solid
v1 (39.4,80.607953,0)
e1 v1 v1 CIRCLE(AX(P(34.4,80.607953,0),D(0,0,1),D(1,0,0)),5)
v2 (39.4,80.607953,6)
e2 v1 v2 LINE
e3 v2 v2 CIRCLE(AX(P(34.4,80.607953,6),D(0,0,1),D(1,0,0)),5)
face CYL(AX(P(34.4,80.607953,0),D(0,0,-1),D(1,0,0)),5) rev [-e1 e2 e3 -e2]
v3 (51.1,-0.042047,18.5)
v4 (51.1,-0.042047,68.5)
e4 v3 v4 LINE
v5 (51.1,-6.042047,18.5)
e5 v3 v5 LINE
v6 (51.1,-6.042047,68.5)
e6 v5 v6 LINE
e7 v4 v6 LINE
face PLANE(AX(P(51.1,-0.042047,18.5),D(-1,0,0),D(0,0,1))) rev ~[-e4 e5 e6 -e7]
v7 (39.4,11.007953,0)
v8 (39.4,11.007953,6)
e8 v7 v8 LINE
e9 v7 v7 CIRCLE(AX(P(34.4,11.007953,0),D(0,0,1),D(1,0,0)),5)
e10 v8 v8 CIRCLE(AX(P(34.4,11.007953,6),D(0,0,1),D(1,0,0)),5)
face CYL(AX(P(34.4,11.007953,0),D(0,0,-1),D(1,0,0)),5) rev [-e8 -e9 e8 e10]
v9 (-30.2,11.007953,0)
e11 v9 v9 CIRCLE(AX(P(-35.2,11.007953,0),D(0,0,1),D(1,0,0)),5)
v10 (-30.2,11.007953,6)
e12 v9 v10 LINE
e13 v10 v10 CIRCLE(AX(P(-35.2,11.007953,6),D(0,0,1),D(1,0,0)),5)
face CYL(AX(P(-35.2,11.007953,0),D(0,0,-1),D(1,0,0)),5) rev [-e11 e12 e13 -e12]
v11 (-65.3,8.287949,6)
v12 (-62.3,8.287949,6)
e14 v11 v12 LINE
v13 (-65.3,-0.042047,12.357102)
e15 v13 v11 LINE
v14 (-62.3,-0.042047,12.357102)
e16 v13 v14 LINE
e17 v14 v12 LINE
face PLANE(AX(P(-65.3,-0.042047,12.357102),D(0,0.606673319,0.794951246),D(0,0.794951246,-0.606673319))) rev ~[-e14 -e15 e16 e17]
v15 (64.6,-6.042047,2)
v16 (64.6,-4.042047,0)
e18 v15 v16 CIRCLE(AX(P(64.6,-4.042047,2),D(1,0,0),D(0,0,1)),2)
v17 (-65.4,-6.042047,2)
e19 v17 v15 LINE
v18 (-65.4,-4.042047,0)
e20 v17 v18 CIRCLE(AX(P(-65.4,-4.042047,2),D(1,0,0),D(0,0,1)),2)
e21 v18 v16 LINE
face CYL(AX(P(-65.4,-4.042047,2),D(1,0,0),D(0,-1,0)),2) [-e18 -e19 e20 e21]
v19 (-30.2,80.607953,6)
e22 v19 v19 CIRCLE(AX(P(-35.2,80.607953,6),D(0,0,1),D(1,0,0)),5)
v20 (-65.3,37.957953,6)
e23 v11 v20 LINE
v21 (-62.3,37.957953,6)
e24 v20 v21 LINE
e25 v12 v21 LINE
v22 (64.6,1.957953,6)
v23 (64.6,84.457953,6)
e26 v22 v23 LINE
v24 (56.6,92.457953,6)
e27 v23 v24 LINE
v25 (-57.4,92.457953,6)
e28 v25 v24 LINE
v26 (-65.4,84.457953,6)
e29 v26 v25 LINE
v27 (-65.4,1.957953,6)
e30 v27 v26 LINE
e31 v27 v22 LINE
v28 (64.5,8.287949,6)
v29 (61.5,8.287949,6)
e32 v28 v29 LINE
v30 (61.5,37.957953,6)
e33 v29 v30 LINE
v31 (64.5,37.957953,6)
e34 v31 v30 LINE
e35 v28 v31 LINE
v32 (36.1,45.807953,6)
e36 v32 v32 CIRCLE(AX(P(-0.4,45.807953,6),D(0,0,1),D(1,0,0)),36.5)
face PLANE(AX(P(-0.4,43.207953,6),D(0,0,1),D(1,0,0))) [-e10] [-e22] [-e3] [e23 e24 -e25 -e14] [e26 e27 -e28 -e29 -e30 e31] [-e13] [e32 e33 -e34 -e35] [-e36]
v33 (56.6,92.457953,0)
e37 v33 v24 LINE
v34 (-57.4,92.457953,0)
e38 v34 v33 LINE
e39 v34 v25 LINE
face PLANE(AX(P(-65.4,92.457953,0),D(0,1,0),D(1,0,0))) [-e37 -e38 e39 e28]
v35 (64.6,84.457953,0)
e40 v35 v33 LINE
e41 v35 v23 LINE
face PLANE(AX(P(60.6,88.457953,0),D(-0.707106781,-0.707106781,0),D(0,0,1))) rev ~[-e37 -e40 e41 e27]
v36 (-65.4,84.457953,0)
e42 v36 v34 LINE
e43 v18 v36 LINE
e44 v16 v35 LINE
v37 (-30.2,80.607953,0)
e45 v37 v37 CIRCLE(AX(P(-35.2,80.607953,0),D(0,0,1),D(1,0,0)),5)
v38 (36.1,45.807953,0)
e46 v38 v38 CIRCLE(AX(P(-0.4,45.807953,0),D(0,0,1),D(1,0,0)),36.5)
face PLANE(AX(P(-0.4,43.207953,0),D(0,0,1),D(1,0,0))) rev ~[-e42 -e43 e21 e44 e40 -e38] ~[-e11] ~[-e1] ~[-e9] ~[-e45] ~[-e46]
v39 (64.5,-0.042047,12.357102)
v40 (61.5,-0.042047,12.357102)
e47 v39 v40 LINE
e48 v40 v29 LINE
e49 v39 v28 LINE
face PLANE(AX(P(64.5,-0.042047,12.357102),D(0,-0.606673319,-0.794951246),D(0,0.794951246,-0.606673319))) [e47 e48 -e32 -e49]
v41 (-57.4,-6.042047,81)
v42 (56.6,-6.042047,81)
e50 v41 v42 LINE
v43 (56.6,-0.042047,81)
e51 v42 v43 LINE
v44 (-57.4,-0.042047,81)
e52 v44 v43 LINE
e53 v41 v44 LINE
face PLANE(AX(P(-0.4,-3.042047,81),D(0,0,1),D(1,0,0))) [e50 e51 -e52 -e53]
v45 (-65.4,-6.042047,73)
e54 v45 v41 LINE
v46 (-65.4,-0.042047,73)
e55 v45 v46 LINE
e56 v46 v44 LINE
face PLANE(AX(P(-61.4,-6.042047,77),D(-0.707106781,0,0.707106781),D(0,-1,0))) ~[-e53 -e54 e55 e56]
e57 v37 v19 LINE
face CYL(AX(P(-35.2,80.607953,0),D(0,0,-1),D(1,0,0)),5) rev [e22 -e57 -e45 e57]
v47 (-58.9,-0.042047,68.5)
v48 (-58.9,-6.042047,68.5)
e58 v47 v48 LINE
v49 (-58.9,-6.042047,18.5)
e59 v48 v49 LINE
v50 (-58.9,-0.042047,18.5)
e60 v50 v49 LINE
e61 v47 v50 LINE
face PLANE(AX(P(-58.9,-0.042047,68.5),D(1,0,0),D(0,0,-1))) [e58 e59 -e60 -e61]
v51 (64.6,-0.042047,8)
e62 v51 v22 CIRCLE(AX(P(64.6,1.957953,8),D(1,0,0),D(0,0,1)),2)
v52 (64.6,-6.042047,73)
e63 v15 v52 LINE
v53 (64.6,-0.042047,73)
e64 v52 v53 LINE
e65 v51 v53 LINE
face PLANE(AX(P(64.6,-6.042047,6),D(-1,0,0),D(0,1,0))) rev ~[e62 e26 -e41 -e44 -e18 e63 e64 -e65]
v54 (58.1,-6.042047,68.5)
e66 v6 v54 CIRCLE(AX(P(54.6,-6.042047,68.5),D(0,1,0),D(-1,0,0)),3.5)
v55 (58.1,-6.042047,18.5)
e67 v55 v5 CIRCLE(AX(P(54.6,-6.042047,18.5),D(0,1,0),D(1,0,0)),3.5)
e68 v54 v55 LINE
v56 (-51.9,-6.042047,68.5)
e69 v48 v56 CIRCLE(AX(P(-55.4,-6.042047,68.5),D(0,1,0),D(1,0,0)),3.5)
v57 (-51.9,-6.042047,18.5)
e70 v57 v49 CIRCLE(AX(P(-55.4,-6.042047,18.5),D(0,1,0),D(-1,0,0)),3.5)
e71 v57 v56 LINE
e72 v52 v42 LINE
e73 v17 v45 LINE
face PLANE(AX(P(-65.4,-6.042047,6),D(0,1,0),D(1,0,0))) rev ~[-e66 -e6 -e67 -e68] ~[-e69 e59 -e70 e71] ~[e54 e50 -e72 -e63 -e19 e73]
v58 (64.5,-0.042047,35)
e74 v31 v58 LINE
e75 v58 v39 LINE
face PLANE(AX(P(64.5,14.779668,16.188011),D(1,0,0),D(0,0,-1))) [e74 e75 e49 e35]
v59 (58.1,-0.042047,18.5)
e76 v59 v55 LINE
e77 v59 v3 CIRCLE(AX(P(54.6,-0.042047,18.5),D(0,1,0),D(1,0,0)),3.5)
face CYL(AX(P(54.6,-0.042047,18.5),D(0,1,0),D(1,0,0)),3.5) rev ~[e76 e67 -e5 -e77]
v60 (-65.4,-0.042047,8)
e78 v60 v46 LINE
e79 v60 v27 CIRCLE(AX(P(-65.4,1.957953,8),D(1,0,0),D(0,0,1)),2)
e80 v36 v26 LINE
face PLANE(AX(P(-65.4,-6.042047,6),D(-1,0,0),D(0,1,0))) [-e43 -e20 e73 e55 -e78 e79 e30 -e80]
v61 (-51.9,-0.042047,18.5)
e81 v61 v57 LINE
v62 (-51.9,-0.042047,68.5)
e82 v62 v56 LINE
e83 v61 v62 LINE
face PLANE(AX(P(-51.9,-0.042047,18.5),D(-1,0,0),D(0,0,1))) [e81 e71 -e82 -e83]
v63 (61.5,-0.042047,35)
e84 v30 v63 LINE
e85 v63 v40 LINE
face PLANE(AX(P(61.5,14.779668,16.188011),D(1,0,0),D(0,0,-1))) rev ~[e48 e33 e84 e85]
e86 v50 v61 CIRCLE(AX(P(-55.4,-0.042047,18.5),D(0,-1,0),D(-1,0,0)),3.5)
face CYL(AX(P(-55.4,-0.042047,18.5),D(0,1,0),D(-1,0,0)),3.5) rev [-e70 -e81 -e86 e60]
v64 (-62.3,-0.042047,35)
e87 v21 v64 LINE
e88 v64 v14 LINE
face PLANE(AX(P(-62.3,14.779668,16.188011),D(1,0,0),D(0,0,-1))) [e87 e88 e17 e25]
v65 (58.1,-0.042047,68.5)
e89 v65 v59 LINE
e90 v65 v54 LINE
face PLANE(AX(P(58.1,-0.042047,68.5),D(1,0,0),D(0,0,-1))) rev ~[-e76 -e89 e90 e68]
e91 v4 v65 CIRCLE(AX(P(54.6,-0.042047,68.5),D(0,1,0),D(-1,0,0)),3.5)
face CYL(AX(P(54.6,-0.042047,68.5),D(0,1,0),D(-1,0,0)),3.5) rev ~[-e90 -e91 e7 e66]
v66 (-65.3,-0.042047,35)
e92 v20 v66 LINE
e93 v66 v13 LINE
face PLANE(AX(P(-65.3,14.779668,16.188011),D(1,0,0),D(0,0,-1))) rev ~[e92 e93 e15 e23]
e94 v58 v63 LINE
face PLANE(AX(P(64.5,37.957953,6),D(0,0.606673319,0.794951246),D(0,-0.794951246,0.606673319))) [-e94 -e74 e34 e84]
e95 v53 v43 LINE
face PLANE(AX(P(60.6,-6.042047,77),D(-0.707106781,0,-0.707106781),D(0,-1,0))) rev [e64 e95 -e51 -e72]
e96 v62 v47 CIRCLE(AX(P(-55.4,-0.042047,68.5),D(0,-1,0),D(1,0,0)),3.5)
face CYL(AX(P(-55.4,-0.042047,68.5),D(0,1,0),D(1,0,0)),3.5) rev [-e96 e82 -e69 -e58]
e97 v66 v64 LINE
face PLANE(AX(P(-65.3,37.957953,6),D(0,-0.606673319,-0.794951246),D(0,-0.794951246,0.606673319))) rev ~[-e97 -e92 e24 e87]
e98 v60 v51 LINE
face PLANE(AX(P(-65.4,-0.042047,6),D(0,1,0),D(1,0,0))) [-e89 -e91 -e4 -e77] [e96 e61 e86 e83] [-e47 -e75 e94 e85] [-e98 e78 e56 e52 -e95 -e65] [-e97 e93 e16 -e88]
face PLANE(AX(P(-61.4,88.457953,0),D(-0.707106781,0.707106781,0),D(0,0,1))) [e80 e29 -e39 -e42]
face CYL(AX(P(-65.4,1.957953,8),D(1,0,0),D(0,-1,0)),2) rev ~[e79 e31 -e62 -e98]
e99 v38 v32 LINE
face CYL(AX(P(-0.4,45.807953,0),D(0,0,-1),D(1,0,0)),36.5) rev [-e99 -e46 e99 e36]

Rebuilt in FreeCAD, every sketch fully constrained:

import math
import FreeCAD as App
import Part
import Sketcher


def edges_at(feature, points):
    """Names of the edges that pass closest to the given points."""
    edges = feature.Shape.Edges
    near = lambda p: min(range(len(edges)), key=lambda i: edges[i].distToShape(Part.Vertex(*p))[0])
    return sorted({f"Edge{near(p) + 1}" for p in points})


def add_polygon(sketch, points):
    """Adds a closed chain of lines whose ends are joined by coincident constraints."""
    first, n = sketch.GeometryCount, len(points)
    for a, b in zip(points, points[1:] + points[:1]):
        sketch.addGeometry(Part.LineSegment(App.Vector(*a, 0), App.Vector(*b, 0)), False)
    for i in range(n):
        sketch.addConstraint(Sketcher.Constraint("Coincident", first + i, 2, first + (i + 1) % n, 1))

doc = App.newDocument("Part")
body = doc.addObject("PartDesign::Body", "Body")

sketch1 = doc.addObject("Sketcher::SketchObject", "Sketch")
body.addObject(sketch1)
sketch1.AttachmentSupport = (doc.XY_Plane, [""])
sketch1.MapMode = "FlatFace"
add_polygon(sketch1, [(-65, 92), (-65, -6), (65, -6), (65, 92)])
sketch1.addGeometry(Part.Circle(App.Vector(-35, 11, 0), App.Vector(0, 0, 1), 5), False)
sketch1.addGeometry(Part.Circle(App.Vector(34, 11, 0), App.Vector(0, 0, 1), 5), False)
sketch1.addGeometry(Part.Circle(App.Vector(-35, 81, 0), App.Vector(0, 0, 1), 5), False)
sketch1.addGeometry(Part.Circle(App.Vector(0, 46, 0), App.Vector(0, 0, 1), 36), False)
sketch1.addGeometry(Part.Circle(App.Vector(34, 81, 0), App.Vector(0, 0, 1), 5), False)
sketch1.addConstraint([
    Sketcher.Constraint("Vertical", 0),
    Sketcher.Constraint("Horizontal", 1),
    Sketcher.Constraint("Vertical", 2),
    Sketcher.Constraint("Horizontal", 3),
    Sketcher.Constraint("Equal", 4, 5),
    Sketcher.Constraint("Equal", 5, 6),
    Sketcher.Constraint("Equal", 6, 8),
    Sketcher.Constraint("Horizontal", 4, 3, 5, 3),
    Sketcher.Constraint("Horizontal", 6, 3, 8, 3),
    Sketcher.Constraint("Vertical", 4, 3, 6, 3),
    Sketcher.Constraint("Vertical", 5, 3, 8, 3),
    Sketcher.Constraint("Diameter", 4, 10.0),
    Sketcher.Constraint("Diameter", 7, 73.0),
    Sketcher.Constraint("DistanceX", 1, 1, 1, 2, 130.0),
    Sketcher.Constraint("DistanceY", 0, 2, 0, 1, 98.5),
    Sketcher.Constraint("DistanceX", 0, 2, 7, 3, 65.0),
    Sketcher.Constraint("DistanceX", 4, 3, -1, 1, 35.2),
    Sketcher.Constraint("DistanceX", -1, 1, 5, 3, 34.4),
    Sketcher.Constraint("DistanceX", 7, 3, -1, 1, 0.4),
    Sketcher.Constraint("DistanceY", 4, 3, 6, 3, 69.6),
    Sketcher.Constraint("DistanceY", 5, 3, 7, 3, 34.8),
    Sketcher.Constraint("DistanceY", 0, 2, 4, 3, 17.05),
    Sketcher.Constraint("DistanceY", -1, 1, 4, 3, 11.007953),
])
pad1 = doc.addObject("PartDesign::Pad", "Pad")
body.addObject(pad1)
pad1.Profile = sketch1
pad1.Length = 6

sketch2 = doc.addObject("Sketcher::SketchObject", "Sketch001")
body.addObject(sketch2)
sketch2.AttachmentSupport = (doc.XY_Plane, [""])
sketch2.MapMode = "FlatFace"
sketch2.AttachmentOffset = App.Placement(App.Vector(0, 0, 6), App.Rotation())
add_polygon(sketch2, [(-65, 0), (-65, -6), (65, -6), (65, 0)])
sketch2.addConstraint([
    Sketcher.Constraint("Vertical", 0),
    Sketcher.Constraint("Horizontal", 1),
    Sketcher.Constraint("Vertical", 2),
    Sketcher.Constraint("Horizontal", 3),
    Sketcher.Constraint("DistanceX", 1, 1, 1, 2, 130.0),
    Sketcher.Constraint("DistanceY", 0, 2, 0, 1, 6.0),
    Sketcher.Constraint("DistanceX", 0, 2, -1, 1, 65.4),
    Sketcher.Constraint("DistanceY", 0, 2, -1, 1, 6.042047),
])
pad2 = doc.addObject("PartDesign::Pad", "Pad001")
body.addObject(pad2)
pad2.Profile = sketch2
pad2.Length = 75
doc.recompute()

chamfer = doc.addObject("PartDesign::Chamfer", "Chamfer")
body.addObject(chamfer)
chamfer.Base = (pad2, edges_at(pad2, [
    (-65.4, -3.042, 81),
    (64.6, -3.042, 81),
    (-65.4, 92.458, 3),
    (64.6, 92.458, 3),
]))
chamfer.Size = 8

sketch3 = doc.addObject("Sketcher::SketchObject", "Sketch002")
body.addObject(sketch3)
sketch3.AttachmentSupport = (doc.XZ_Plane, [""])
sketch3.MapMode = "FlatFace"
sketch3.AttachmentOffset = App.Placement(App.Vector(0, 0, 0.042047), App.Rotation())
sketch3.addGeometry([
    Part.LineSegment(App.Vector(-58.9, 18.5, 0), App.Vector(-58.9, 68.5, 0)),
    Part.ArcOfCircle(Part.Circle(App.Vector(-55.4, 68.5, 0), App.Vector(0, 0, 1), 3.5), math.radians(0), math.radians(180)),
    Part.LineSegment(App.Vector(-51.9, 68.5, 0), App.Vector(-51.9, 18.5, 0)),
    Part.ArcOfCircle(Part.Circle(App.Vector(-55.4, 18.5, 0), App.Vector(0, 0, 1), 3.5), math.radians(180), math.radians(360)),
    Part.LineSegment(App.Vector(58.1, 68.5, 0), App.Vector(58.1, 18.5, 0)),
    Part.ArcOfCircle(Part.Circle(App.Vector(54.6, 18.5, 0), App.Vector(0, 0, 1), 3.5), math.radians(180), math.radians(360)),
    Part.LineSegment(App.Vector(51.1, 18.5, 0), App.Vector(51.1, 68.5, 0)),
    Part.ArcOfCircle(Part.Circle(App.Vector(54.6, 68.5, 0), App.Vector(0, 0, 1), 3.5), math.radians(0), math.radians(180)),
], False)
sketch3.addConstraint([
    Sketcher.Constraint("Tangent", 0, 2, 1, 2),
    Sketcher.Constraint("Tangent", 1, 1, 2, 1),
    Sketcher.Constraint("Tangent", 2, 2, 3, 2),
    Sketcher.Constraint("Tangent", 3, 1, 0, 1),
    Sketcher.Constraint("Tangent", 4, 2, 5, 2),
    Sketcher.Constraint("Tangent", 5, 1, 6, 1),
    Sketcher.Constraint("Tangent", 6, 2, 7, 2),
    Sketcher.Constraint("Tangent", 7, 1, 4, 1),
    Sketcher.Constraint("Vertical", 0),
    Sketcher.Constraint("Vertical", 2),
    Sketcher.Constraint("Vertical", 4),
    Sketcher.Constraint("Vertical", 6),
    Sketcher.Constraint("Equal", 3, 5),
    Sketcher.Constraint("Horizontal", 3, 3, 5, 3),
    Sketcher.Constraint("Horizontal", 1, 3, 7, 3),
    Sketcher.Constraint("Radius", 1, 3.5),
    Sketcher.Constraint("DistanceY", 0, 1, 0, 2, 50.0),
    Sketcher.Constraint("DistanceX", 3, 3, 5, 3, 110.0),
    Sketcher.Constraint("DistanceX", 1, 3, -1, 1, 55.4),
    Sketcher.Constraint("DistanceY", -1, 1, 1, 3, 68.5),
])
pocket1 = doc.addObject("PartDesign::Pocket", "Pocket")
body.addObject(pocket1)
pocket1.Profile = sketch3
pocket1.Type = "ThroughAll"
pocket1.Reversed = True

sketch4 = doc.addObject("Sketcher::SketchObject", "Sketch003")
body.addObject(sketch4)
sketch4.AttachmentSupport = (doc.YZ_Plane, [""])
sketch4.MapMode = "FlatFace"
sketch4.AttachmentOffset = App.Placement(App.Vector(0, 0, -65.3), App.Rotation())
add_polygon(sketch4, [(0, 35), (38, 6), (8, 6), (0, 12)])
sketch4.addConstraint([
    Sketcher.Constraint("Horizontal", 1),
    Sketcher.Constraint("Vertical", 3),
    Sketcher.Constraint("Parallel", 0, 2),
    Sketcher.Constraint("DistanceY", -1, 1, 0, 2, 6.0),
    Sketcher.Constraint("DistanceY", -1, 1, 3, 2, 35.0),
    Sketcher.Constraint("DistanceX", 2, 2, 0, 2, 38.0),
    Sketcher.Constraint("DistanceY", 3, 1, 3, 2, 22.642898),
    Sketcher.Constraint("DistanceX", -1, 1, 1, 2, 8.287949),
])
pad3 = doc.addObject("PartDesign::Pad", "Pad002")
body.addObject(pad3)
pad3.Profile = sketch4
pad3.Length = 3

sketch5 = doc.addObject("Sketcher::SketchObject", "Sketch004")
body.addObject(sketch5)
sketch5.AttachmentSupport = (doc.YZ_Plane, [""])
sketch5.MapMode = "FlatFace"
sketch5.AttachmentOffset = App.Placement(App.Vector(0, 0, 64.5), App.Rotation())
add_polygon(sketch5, [(8, 6), (38, 6), (0, 35), (0, 12)])
sketch5.addConstraint([
    Sketcher.Constraint("Horizontal", 0),
    Sketcher.Constraint("Vertical", 2),
    Sketcher.Constraint("Parallel", 1, 3),
    Sketcher.Constraint("DistanceY", -1, 1, 0, 2, 6.0),
    Sketcher.Constraint("DistanceY", -1, 1, 1, 2, 35.0),
    Sketcher.Constraint("DistanceX", 1, 2, 0, 2, 38.0),
    Sketcher.Constraint("DistanceY", 2, 2, 2, 1, 22.642898),
    Sketcher.Constraint("DistanceX", -1, 1, 3, 2, 8.287949),
])
pad4 = doc.addObject("PartDesign::Pad", "Pad003")
body.addObject(pad4)
pad4.Profile = sketch5
pad4.Length = 3
pad4.Reversed = True
doc.recompute()

fillet = doc.addObject("PartDesign::Fillet", "Fillet")
body.addObject(fillet)
fillet.Base = (pad4, edges_at(pad4, [(-0.4, -0.042, 6), (-0.4, -6.042, 0)]))
fillet.Radius = 2

doc.recompute()
